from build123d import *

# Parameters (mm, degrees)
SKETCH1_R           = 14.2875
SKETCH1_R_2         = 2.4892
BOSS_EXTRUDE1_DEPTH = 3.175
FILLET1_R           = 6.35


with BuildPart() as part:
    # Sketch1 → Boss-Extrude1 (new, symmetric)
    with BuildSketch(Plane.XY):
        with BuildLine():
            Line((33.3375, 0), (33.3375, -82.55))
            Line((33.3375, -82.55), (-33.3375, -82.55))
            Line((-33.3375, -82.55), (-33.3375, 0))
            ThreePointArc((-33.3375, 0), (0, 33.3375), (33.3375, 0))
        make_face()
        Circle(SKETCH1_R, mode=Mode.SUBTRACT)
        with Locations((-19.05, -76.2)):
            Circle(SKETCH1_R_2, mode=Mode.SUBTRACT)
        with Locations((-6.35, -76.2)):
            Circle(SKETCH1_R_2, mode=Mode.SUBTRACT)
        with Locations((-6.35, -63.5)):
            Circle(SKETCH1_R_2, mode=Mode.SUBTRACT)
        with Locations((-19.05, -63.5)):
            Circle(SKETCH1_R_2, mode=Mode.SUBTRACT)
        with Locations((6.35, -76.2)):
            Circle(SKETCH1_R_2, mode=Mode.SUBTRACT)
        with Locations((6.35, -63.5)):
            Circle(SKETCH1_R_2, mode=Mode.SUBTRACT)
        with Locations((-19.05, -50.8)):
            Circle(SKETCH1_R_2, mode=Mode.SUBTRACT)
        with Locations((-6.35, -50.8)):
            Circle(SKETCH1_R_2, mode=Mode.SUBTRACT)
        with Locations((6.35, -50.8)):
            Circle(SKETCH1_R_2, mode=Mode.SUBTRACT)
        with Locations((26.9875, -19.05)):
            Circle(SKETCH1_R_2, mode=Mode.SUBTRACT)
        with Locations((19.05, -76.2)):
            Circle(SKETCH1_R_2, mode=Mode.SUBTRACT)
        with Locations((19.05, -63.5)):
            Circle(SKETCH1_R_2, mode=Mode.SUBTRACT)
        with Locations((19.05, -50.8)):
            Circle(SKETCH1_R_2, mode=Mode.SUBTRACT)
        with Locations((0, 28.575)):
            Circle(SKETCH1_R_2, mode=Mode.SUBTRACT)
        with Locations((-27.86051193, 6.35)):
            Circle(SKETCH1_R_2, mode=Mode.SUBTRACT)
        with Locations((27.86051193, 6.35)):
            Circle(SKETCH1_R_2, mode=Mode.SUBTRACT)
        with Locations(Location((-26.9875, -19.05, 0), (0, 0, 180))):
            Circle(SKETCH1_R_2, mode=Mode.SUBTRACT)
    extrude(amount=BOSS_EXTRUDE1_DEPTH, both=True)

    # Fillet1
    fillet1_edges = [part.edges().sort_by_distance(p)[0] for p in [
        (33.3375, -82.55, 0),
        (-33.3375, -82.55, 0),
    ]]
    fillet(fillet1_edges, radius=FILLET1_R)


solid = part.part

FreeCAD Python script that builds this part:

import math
import FreeCAD as App
import Part
import Sketcher
Q = App.Units.Quantity


def edges_at(feature, points):
    """Names of the edges that pass closest to the given points."""
    edges = feature.Shape.Edges
    near = lambda p: min(range(len(edges)), key=lambda i: edges[i].distToShape(Part.Vertex(*p))[0])
    return sorted({f"Edge{near(p) + 1}" for p in points})

doc = App.newDocument("Part")
body = doc.addObject("PartDesign::Body", "Body")

# Sketch on XY plane
sketch1 = body.newObject("Sketcher::SketchObject", "Sketch")
sketch1.AttachmentSupport = (doc.getObject("XY_Plane"), [""])
sketch1.MapMode = "FlatFace"
sketch1.addGeometry(Part.LineSegment(App.Vector(33.3, -82.5, 0), App.Vector(33.3, 0, 0)), False)
sketch1.addGeometry(Part.ArcOfCircle(Part.Circle(App.Vector(0, 0, 0), App.Vector(0, 0, 1), 33.3), math.radians(0), math.radians(180)), False)
sketch1.addGeometry(Part.LineSegment(App.Vector(-33.3, 0, 0), App.Vector(-33.3, -82.5, 0)), False)
sketch1.addGeometry(Part.LineSegment(App.Vector(-33.3, -82.5, 0), App.Vector(33.3, -82.5, 0)), False)
sketch1.addGeometry(Part.Circle(App.Vector(19.1, -76.2, 0), App.Vector(0, 0, 1), 2.5), False)
sketch1.addGeometry(Part.Circle(App.Vector(19.1, -63.5, 0), App.Vector(0, 0, 1), 2.5), False)
sketch1.addGeometry(Part.Circle(App.Vector(6.3, -76.2, 0), App.Vector(0, 0, 1), 2.5), False)
sketch1.addGeometry(Part.Circle(App.Vector(6.3, -63.5, 0), App.Vector(0, 0, 1), 2.5), False)
sketch1.addGeometry(Part.Circle(App.Vector(19.1, -50.8, 0), App.Vector(0, 0, 1), 2.5), False)
sketch1.addGeometry(Part.Circle(App.Vector(6.3, -50.8, 0), App.Vector(0, 0, 1), 2.5), False)
sketch1.addGeometry(Part.Circle(App.Vector(-6.3, -76.2, 0), App.Vector(0, 0, 1), 2.5), False)
sketch1.addGeometry(Part.Circle(App.Vector(-6.3, -63.5, 0), App.Vector(0, 0, 1), 2.5), False)
sketch1.addGeometry(Part.Circle(App.Vector(-19.1, -76.2, 0), App.Vector(0, 0, 1), 2.5), False)
sketch1.addGeometry(Part.Circle(App.Vector(-19.1, -63.5, 0), App.Vector(0, 0, 1), 2.5), False)
sketch1.addGeometry(Part.Circle(App.Vector(-6.3, -50.8, 0), App.Vector(0, 0, 1), 2.5), False)
sketch1.addGeometry(Part.Circle(App.Vector(-19.1, -50.8, 0), App.Vector(0, 0, 1), 2.5), False)
sketch1.addGeometry(Part.Circle(App.Vector(27, -19.1, 0), App.Vector(0, 0, 1), 2.5), False)
sketch1.addGeometry(Part.Circle(App.Vector(27.9, 6.3, 0), App.Vector(0, 0, 1), 2.5), False)
sketch1.addGeometry(Part.Circle(App.Vector(0, 0, 0), App.Vector(0, 0, 1), 14.3), False)
sketch1.addGeometry(Part.Circle(App.Vector(-27, -19.1, 0), App.Vector(0, 0, 1), 2.5), False)
sketch1.addGeometry(Part.Circle(App.Vector(0, 28.6, 0), App.Vector(0, 0, 1), 2.5), False)
sketch1.addGeometry(Part.Circle(App.Vector(-27.9, 6.3, 0), App.Vector(0, 0, 1), 2.5), False)
sketch1.addConstraint(Sketcher.Constraint("Tangent", 0, 2, 1, 1))
sketch1.addConstraint(Sketcher.Constraint("Tangent", 1, 2, 2, 1))
sketch1.addConstraint(Sketcher.Constraint("Coincident", 2, 2, 3, 1))
sketch1.addConstraint(Sketcher.Constraint("Coincident", 3, 2, 0, 1))
sketch1.addConstraint(Sketcher.Constraint("Vertical", 0))
sketch1.addConstraint(Sketcher.Constraint("Vertical", 2))
sketch1.addConstraint(Sketcher.Constraint("Horizontal", 3))
sketch1.addConstraint(Sketcher.Constraint("Coincident", 1, 3, -1, 1))
sketch1.addConstraint(Sketcher.Constraint("Coincident", 18, 3, -1, 1))
sketch1.addConstraint(Sketcher.Constraint("Equal", 4, 5))
sketch1.addConstraint(Sketcher.Constraint("Equal", 5, 6))
sketch1.addConstraint(Sketcher.Constraint("Equal", 6, 7))
sketch1.addConstraint(Sketcher.Constraint("Equal", 7, 8))
sketch1.addConstraint(Sketcher.Constraint("Equal", 8, 9))
sketch1.addConstraint(Sketcher.Constraint("Equal", 9, 10))
sketch1.addConstraint(Sketcher.Constraint("Equal", 10, 11))
sketch1.addConstraint(Sketcher.Constraint("Equal", 11, 12))
sketch1.addConstraint(Sketcher.Constraint("Equal", 12, 13))
sketch1.addConstraint(Sketcher.Constraint("Equal", 13, 14))
sketch1.addConstraint(Sketcher.Constraint("Equal", 14, 15))
sketch1.addConstraint(Sketcher.Constraint("Equal", 15, 16))
sketch1.addConstraint(Sketcher.Constraint("Equal", 16, 17))
sketch1.addConstraint(Sketcher.Constraint("Equal", 17, 19))
sketch1.addConstraint(Sketcher.Constraint("Equal", 19, 20))
sketch1.addConstraint(Sketcher.Constraint("Equal", 20, 21))
sketch1.addConstraint(Sketcher.Constraint("Symmetric", 6, 3, 10, 3, -2))
sketch1.addConstraint(Sketcher.Constraint("Symmetric", 7, 3, 11, 3, -2))
sketch1.addConstraint(Sketcher.Constraint("Symmetric", 4, 3, 12, 3, -2))
sketch1.addConstraint(Sketcher.Constraint("Symmetric", 5, 3, 13, 3, -2))
sketch1.addConstraint(Sketcher.Constraint("Symmetric", 9, 3, 14, 3, -2))
sketch1.addConstraint(Sketcher.Constraint("Symmetric", 8, 3, 15, 3, -2))
sketch1.addConstraint(Sketcher.Constraint("Symmetric", 16, 3, 19, 3, -2))
sketch1.addConstraint(Sketcher.Constraint("Symmetric", 17, 3, 21, 3, -2))
sketch1.addConstraint(Sketcher.Constraint("PointOnObject", 20, 3, -2))
sketch1.addConstraint(Sketcher.Constraint("Horizontal", 4, 3, 6, 3))
sketch1.addConstraint(Sketcher.Constraint("Horizontal", 5, 3, 7, 3))
sketch1.addConstraint(Sketcher.Constraint("Horizontal", 8, 3, 9, 3))
sketch1.addConstraint(Sketcher.Constraint("Vertical", 4, 3, 5, 3))
sketch1.addConstraint(Sketcher.Constraint("Vertical", 6, 3, 7, 3))
sketch1.addConstraint(Sketcher.Constraint("Vertical", 5, 3, 8, 3))
sketch1.addConstraint(Sketcher.Constraint("Vertical", 7, 3, 9, 3))
sketch1.addConstraint(Sketcher.Constraint("Diameter", 4, Q("0.196 in")))
sketch1.addConstraint(Sketcher.Constraint("Diameter", 18, Q("1.125 in")))
sketch1.addConstraint(Sketcher.Constraint("DistanceY", 4, 3, -1, 1, Q("3 in")))
sketch1.addConstraint(Sketcher.Constraint("DistanceY", 8, 3, -1, 1, Q("2 in")))
sketch1.addConstraint(Sketcher.Constraint("Radius", 1, Q("1.3125 in")))
sketch1.addConstraint(Sketcher.Constraint("DistanceX", 10, 3, 4, 3, Q("1 in")))
sketch1.addConstraint(Sketcher.Constraint("DistanceY", 16, 3, 17, 3, Q("1 in")))
sketch1.addConstraint(Sketcher.Constraint("DistanceY", 0, 1, 0, 2, Q("3.25 in")))
sketch1.addConstraint(Sketcher.Constraint("DistanceY", 5, 3, -1, 1, Q("2.5 in")))
sketch1.addConstraint(Sketcher.Constraint("DistanceX", 6, 3, 4, 3, Q("0.5 in")))
sketch1.addConstraint(Sketcher.Constraint("DistanceY", 16, 3, -1, 1, Q("0.75 in")))
sketch1.addConstraint(Sketcher.Constraint("DistanceX", 16, 3, 0, 2, Q("0.25 in")))
sketch1.addConstraint(Sketcher.Constraint("DistanceY", -1, 1, 20, 3, Q("1.125 in")))
sketch1.addConstraint(Sketcher.Constraint("DistanceX", -1, 1, 17, 3, 27.860512))
pad1 = body.newObject("PartDesign::Pad", "Pad")
pad1.Profile = sketch1
pad1.Length = Q("0.25 in")
pad1.Midplane = True
doc.recompute()

fillet = body.newObject("PartDesign::Fillet", "Fillet")
fillet.Base = (pad1, edges_at(pad1, [(33.337, -82.55, 0), (-33.337, -82.55, 0)]))
fillet.Radius = Q("0.25 in")

doc.recompute()
